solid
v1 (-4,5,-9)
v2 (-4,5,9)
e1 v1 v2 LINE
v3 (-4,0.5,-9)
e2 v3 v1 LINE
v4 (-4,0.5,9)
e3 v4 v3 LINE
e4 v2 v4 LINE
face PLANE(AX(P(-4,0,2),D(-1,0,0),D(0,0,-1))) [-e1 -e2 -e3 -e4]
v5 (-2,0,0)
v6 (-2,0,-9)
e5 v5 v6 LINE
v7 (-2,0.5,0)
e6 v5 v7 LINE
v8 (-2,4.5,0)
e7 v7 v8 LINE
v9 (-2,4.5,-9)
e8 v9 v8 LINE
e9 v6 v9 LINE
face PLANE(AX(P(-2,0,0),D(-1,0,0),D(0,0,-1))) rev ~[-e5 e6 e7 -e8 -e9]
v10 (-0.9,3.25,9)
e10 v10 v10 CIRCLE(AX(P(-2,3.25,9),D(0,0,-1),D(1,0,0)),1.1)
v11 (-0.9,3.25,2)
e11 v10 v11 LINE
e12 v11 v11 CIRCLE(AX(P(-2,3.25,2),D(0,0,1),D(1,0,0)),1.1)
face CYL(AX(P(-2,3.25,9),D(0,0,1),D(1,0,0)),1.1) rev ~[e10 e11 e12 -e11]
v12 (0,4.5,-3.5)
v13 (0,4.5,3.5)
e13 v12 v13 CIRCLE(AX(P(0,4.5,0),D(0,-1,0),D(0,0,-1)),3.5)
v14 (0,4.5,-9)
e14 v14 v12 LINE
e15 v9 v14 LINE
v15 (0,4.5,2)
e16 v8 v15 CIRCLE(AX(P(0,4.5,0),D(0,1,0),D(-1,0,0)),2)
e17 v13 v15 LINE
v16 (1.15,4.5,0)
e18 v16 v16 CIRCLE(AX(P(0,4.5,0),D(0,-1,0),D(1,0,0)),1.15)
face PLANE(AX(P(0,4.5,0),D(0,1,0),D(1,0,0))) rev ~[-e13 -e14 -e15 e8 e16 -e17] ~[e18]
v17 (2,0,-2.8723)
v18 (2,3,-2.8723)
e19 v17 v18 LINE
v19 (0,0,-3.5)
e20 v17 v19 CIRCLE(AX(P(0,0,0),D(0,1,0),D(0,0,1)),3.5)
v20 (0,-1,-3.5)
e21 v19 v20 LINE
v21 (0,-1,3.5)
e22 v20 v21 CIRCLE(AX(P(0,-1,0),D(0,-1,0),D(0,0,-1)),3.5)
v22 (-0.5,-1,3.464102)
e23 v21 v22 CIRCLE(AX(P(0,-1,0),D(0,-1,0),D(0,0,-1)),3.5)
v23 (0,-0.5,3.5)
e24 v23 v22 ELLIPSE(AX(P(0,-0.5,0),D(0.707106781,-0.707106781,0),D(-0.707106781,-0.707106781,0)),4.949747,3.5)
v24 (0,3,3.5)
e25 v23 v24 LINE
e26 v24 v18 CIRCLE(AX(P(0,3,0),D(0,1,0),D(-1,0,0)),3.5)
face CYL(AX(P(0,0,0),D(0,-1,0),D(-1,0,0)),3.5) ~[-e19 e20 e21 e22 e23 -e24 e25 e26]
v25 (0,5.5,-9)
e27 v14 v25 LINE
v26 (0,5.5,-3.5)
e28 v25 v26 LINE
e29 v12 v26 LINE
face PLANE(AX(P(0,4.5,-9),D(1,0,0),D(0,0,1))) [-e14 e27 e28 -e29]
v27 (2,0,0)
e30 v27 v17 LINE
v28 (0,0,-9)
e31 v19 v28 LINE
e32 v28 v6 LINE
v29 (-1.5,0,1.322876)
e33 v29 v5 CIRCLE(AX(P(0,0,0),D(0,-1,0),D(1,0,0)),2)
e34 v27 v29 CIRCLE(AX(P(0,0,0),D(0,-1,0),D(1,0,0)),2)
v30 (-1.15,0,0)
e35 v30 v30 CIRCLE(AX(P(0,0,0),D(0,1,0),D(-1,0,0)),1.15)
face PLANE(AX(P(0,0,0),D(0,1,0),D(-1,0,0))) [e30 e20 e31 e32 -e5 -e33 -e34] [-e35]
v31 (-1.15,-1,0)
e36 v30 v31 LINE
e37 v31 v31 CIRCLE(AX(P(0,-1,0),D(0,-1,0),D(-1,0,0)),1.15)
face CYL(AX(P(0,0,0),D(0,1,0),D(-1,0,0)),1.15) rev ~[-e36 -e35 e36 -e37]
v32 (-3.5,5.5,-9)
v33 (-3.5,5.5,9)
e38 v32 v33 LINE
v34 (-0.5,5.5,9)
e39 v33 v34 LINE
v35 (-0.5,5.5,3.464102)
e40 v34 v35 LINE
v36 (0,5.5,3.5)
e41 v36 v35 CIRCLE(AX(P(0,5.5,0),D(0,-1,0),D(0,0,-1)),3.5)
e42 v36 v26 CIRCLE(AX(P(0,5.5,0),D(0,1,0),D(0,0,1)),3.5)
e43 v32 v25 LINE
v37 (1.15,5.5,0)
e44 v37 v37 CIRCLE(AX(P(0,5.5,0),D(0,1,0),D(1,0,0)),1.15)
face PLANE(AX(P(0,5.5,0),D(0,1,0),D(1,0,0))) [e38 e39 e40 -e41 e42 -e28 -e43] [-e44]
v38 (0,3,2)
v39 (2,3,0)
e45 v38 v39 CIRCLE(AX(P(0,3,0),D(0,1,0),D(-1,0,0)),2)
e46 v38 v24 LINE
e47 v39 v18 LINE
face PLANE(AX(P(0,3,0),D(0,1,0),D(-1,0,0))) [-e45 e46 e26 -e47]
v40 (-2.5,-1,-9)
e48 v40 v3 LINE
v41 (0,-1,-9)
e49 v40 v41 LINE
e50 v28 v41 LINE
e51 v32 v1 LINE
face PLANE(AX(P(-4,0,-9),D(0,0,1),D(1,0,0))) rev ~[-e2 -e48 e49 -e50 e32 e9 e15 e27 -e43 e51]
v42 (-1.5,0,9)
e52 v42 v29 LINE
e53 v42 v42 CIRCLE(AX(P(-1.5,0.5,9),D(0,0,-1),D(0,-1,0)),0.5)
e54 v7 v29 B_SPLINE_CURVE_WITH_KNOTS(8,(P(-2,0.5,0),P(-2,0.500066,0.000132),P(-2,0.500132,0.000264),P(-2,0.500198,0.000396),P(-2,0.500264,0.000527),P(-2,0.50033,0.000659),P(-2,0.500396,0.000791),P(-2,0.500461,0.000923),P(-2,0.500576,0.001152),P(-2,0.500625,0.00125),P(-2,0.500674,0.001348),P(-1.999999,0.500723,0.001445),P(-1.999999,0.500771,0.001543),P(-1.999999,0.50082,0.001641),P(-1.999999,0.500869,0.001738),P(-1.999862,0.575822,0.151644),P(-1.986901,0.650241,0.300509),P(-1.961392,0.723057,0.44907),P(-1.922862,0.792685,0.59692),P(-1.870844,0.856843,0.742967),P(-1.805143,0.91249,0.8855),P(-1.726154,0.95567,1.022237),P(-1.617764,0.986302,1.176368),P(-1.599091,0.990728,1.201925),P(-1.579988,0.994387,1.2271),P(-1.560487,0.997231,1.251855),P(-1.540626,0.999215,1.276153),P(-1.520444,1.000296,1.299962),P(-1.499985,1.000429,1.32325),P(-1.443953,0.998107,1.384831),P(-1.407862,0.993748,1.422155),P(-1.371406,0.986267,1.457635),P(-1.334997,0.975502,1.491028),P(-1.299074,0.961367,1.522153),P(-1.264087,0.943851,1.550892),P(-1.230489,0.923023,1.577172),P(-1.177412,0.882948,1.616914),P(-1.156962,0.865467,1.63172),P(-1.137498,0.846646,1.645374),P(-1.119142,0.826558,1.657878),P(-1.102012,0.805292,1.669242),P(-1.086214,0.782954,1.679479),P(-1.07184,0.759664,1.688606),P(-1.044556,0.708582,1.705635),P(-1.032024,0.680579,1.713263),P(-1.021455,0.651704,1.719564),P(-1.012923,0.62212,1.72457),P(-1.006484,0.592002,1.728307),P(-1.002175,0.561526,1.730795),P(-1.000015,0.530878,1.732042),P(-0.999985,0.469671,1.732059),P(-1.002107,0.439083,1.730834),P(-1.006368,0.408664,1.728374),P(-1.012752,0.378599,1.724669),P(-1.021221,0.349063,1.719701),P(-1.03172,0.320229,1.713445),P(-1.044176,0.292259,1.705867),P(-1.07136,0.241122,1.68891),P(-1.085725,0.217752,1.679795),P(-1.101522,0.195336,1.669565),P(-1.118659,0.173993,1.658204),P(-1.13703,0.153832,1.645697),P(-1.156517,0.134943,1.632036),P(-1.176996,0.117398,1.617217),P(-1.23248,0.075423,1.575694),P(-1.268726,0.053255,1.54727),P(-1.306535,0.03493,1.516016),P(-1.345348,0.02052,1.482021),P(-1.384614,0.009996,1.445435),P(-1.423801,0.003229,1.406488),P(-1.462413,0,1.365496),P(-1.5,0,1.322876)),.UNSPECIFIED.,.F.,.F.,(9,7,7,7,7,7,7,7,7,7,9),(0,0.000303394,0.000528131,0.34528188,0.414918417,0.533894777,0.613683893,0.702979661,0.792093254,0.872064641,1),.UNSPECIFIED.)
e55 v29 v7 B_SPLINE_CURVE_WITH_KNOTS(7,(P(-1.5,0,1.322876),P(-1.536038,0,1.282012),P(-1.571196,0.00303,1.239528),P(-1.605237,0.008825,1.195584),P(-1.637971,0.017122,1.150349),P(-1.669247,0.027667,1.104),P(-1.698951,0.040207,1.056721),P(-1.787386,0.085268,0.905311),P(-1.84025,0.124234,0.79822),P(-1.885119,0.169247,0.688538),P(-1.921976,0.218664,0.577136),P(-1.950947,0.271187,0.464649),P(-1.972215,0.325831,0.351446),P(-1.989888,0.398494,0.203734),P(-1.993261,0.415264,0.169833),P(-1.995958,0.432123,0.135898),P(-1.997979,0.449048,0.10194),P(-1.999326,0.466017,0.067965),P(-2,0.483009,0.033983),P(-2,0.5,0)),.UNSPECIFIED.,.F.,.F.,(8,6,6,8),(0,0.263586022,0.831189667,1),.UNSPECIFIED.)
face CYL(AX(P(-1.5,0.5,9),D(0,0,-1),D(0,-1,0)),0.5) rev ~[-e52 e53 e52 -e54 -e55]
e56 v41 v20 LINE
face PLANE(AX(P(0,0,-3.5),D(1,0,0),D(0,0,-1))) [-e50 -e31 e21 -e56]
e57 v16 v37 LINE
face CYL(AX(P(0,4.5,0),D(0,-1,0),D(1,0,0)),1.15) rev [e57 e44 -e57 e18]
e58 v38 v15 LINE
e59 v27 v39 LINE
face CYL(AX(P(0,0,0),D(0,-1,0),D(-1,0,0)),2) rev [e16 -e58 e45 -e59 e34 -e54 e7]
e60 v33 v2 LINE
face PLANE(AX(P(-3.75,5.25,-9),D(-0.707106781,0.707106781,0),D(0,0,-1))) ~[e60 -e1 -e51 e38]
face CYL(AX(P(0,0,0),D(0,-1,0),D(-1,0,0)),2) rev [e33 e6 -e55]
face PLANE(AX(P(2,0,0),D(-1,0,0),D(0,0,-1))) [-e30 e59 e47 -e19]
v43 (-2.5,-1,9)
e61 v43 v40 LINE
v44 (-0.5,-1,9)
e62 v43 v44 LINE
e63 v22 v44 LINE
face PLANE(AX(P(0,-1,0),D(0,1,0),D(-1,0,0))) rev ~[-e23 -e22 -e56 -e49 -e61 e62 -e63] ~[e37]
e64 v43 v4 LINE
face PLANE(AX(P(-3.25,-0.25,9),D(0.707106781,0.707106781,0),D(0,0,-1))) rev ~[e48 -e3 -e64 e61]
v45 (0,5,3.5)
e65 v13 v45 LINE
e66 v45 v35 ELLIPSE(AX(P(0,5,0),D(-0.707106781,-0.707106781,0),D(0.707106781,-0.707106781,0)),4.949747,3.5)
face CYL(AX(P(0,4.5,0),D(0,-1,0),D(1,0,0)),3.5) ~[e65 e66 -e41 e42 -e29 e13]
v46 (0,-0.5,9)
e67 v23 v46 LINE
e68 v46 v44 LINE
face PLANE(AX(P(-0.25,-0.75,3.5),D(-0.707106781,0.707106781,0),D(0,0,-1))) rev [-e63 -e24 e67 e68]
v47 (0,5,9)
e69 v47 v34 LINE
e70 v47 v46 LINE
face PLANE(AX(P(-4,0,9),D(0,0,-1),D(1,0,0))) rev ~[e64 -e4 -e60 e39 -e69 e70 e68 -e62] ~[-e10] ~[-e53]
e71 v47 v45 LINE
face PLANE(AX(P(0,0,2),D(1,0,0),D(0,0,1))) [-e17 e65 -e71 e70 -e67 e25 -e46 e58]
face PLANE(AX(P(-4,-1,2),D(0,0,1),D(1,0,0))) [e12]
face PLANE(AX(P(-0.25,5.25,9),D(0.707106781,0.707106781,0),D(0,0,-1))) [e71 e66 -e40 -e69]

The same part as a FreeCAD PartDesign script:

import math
import FreeCAD as App
import Part
import Sketcher

V = App.Vector


def edges_at(feature, points):
    """Names of the edges that pass closest to the given points."""
    edges = feature.Shape.Edges
    near = lambda p: min(range(len(edges)), key=lambda i: edges[i].distToShape(Part.Vertex(*p))[0])
    return sorted({f"Edge{near(p) + 1}" for p in points})

doc = App.newDocument("Part")
body = doc.addObject("PartDesign::Body", "Body")

# Sketch on XZ plane
sketch1 = body.newObject("Sketcher::SketchObject", "Sketch")
sketch1.AttachmentSupport = (doc.getObject("XZ_Plane"), [""])
sketch1.MapMode = "FlatFace"
sketch1.addGeometry([
    Part.ArcOfCircle(Part.Circle(V(0, 0, 0), V(0, 0, 1), 2), math.radians(0), math.radians(90)),
    Part.LineSegment(V(0, 2, 0), V(0, 3.5, 0)),
    Part.ArcOfCircle(Part.Circle(V(0, 0, 0), V(0, 0, 1), 3.5), math.radians(-55.15027), math.radians(90)),
    Part.LineSegment(V(2, -2.8723, 0), V(2, 0, 0)),
], False)
sketch1.addConstraint([
    Sketcher.Constraint("Coincident", 0, 2, 1, 1),
    Sketcher.Constraint("Coincident", 1, 2, 2, 2),
    Sketcher.Constraint("Coincident", 2, 1, 3, 1),
    Sketcher.Constraint("Tangent", 3, 2, 0, 1),
    Sketcher.Constraint("Vertical", 1),
    Sketcher.Constraint("Vertical", 3),
    Sketcher.Constraint("Coincident", 0, 3, -1, 1),
    Sketcher.Constraint("Coincident", 2, 3, -1, 1),
    Sketcher.Constraint("PointOnObject", 0, 2, -2),
    Sketcher.Constraint("Radius", 0, 2.0),
    Sketcher.Constraint("Radius", 2, 3.5),
])
pad1 = body.newObject("PartDesign::Pad", "Pad")
pad1.Profile = sketch1
pad1.Length = 3
pad1.Reversed = True

# Sketch on XZ plane
sketch2 = body.newObject("Sketcher::SketchObject", "Sketch001")
sketch2.AttachmentSupport = (doc.getObject("XZ_Plane"), [""])
sketch2.MapMode = "FlatFace"
sketch2.addGeometry([
    Part.LineSegment(V(-2, 0, 0), V(-2, -9, 0)),  # 0
    Part.LineSegment(V(-2, -9, 0), V(-4, -9, 0)),  # 1
    Part.LineSegment(V(-4, -9, 0), V(-4, 9, 0)),  # 2
    Part.LineSegment(V(-4, 9, 0), V(0, 9, 0)),  # 3
    Part.LineSegment(V(0, 9, 0), V(0, 2, 0)),  # 4
    Part.ArcOfCircle(Part.Circle(V(0, 0, 0), V(0, 0, 1), 2), math.radians(90), math.radians(180)),  # 5
], False)
sketch2.addConstraint([
    Sketcher.Constraint("Coincident", 0, 2, 1, 1),
    Sketcher.Constraint("Coincident", 1, 2, 2, 1),
    Sketcher.Constraint("Coincident", 2, 2, 3, 1),
    Sketcher.Constraint("Coincident", 3, 2, 4, 1),
    Sketcher.Constraint("Coincident", 4, 2, 5, 1),
    Sketcher.Constraint("Tangent", 5, 2, 0, 1),
    Sketcher.Constraint("Vertical", 0),
    Sketcher.Constraint("Horizontal", 1),
    Sketcher.Constraint("Vertical", 2),
    Sketcher.Constraint("Horizontal", 3),
    Sketcher.Constraint("Vertical", 4),
    Sketcher.Constraint("Coincident", 5, 3, -1, 1),
    Sketcher.Constraint("PointOnObject", 3, 2, -2),
    Sketcher.Constraint("Radius", 5, 2.0),
    Sketcher.Constraint("DistanceX", 3, 1, 3, 2, 4.0),
    Sketcher.Constraint("DistanceY", 0, 2, 0, 1, 9.0),
    Sketcher.Constraint("DistanceY", 4, 2, 4, 1, 7.0),
])
pad2 = body.newObject("PartDesign::Pad", "Pad001")
pad2.Profile = sketch2
pad2.Length = 4.5
pad2.Reversed = True

# Sketch on XZ plane
sketch3 = body.newObject("Sketcher::SketchObject", "Sketch002")
sketch3.AttachmentSupport = (doc.getObject("XZ_Plane"), [""])
sketch3.MapMode = "FlatFace"
sketch3.addGeometry([
    Part.LineSegment(V(0, -3.5, 0), V(0, -9, 0)),  # 0
    Part.LineSegment(V(0, -9, 0), V(-4, -9, 0)),  # 1
    Part.LineSegment(V(-4, -9, 0), V(-4, 9, 0)),  # 2
    Part.LineSegment(V(-4, 9, 0), V(0, 9, 0)),  # 3
    Part.LineSegment(V(0, 9, 0), V(0, 3.5, 0)),  # 4
    Part.ArcOfCircle(Part.Circle(V(0, 0, 0), V(0, 0, 1), 3.5), math.radians(-90), math.radians(90)),  # 5
    Part.Circle(V(0, 0, 0), V(0, 0, 1), 1.15),  # 6
], False)
sketch3.addConstraint([
    Sketcher.Constraint("Coincident", 0, 2, 1, 1),
    Sketcher.Constraint("Coincident", 1, 2, 2, 1),
    Sketcher.Constraint("Coincident", 2, 2, 3, 1),
    Sketcher.Constraint("Coincident", 3, 2, 4, 1),
    Sketcher.Constraint("Coincident", 4, 2, 5, 2),
    Sketcher.Constraint("Coincident", 5, 1, 0, 1),
    Sketcher.Constraint("Vertical", 0),
    Sketcher.Constraint("Horizontal", 1),
    Sketcher.Constraint("Vertical", 2),
    Sketcher.Constraint("Horizontal", 3),
    Sketcher.Constraint("Vertical", 4),
    Sketcher.Constraint("Coincident", 5, 3, -1, 1),
    Sketcher.Constraint("Coincident", 6, 3, -1, 1),
    Sketcher.Constraint("Symmetric", 0, 2, 3, 2, -1, 1),
    Sketcher.Constraint("PointOnObject", 0, 2, -2),
    Sketcher.Constraint("Diameter", 6, 2.3),
    Sketcher.Constraint("Radius", 5, 3.5),
    Sketcher.Constraint("DistanceX", 1, 2, 1, 1, 4.0),
    Sketcher.Constraint("DistanceY", 0, 2, -1, 1, 9.0),
])
pad3 = body.newObject("PartDesign::Pad", "Pad002")
pad3.Profile = sketch3
pad3.Length = 1

# Sketch on XZ plane
sketch4 = body.newObject("Sketcher::SketchObject", "Sketch003")
sketch4.AttachmentSupport = (doc.getObject("XZ_Plane"), [""])
sketch4.MapMode = "FlatFace"
sketch4.AttachmentOffset = App.Placement(V(0, 0, -4.5), App.Rotation())
sketch4.addGeometry([
    Part.LineSegment(V(0, -3.5, 0), V(0, -9, 0)),  # 0
    Part.LineSegment(V(0, -9, 0), V(-4, -9, 0)),  # 1
    Part.LineSegment(V(-4, -9, 0), V(-4, 9, 0)),  # 2
    Part.LineSegment(V(-4, 9, 0), V(0, 9, 0)),  # 3
    Part.LineSegment(V(0, 9, 0), V(0, 3.5, 0)),  # 4
    Part.ArcOfCircle(Part.Circle(V(0, 0, 0), V(0, 0, 1), 3.5), math.radians(-90), math.radians(90)),  # 5
    Part.Circle(V(0, 0, 0), V(0, 0, 1), 1.15),  # 6
], False)
sketch4.addConstraint([
    Sketcher.Constraint("Coincident", 0, 2, 1, 1),
    Sketcher.Constraint("Coincident", 1, 2, 2, 1),
    Sketcher.Constraint("Coincident", 2, 2, 3, 1),
    Sketcher.Constraint("Coincident", 3, 2, 4, 1),
    Sketcher.Constraint("Coincident", 4, 2, 5, 2),
    Sketcher.Constraint("Coincident", 5, 1, 0, 1),
    Sketcher.Constraint("Vertical", 0),
    Sketcher.Constraint("Horizontal", 1),
    Sketcher.Constraint("Vertical", 2),
    Sketcher.Constraint("Horizontal", 3),
    Sketcher.Constraint("Vertical", 4),
    Sketcher.Constraint("Coincident", 5, 3, -1, 1),
    Sketcher.Constraint("Coincident", 6, 3, -1, 1),
    Sketcher.Constraint("Symmetric", 0, 2, 3, 2, -1, 1),
    Sketcher.Constraint("PointOnObject", 0, 2, -2),
    Sketcher.Constraint("Diameter", 6, 2.3),
    Sketcher.Constraint("Radius", 5, 3.5),
    Sketcher.Constraint("DistanceX", 1, 2, 1, 1, 4.0),
    Sketcher.Constraint("DistanceY", 0, 2, -1, 1, 9.0),
])
pad4 = body.newObject("PartDesign::Pad", "Pad003")
pad4.Profile = sketch4
pad4.Length = 1
pad4.Reversed = True

# Sketch on XY plane
sketch5 = body.newObject("Sketcher::SketchObject", "Sketch004")
sketch5.AttachmentSupport = (doc.getObject("XY_Plane"), [""])
sketch5.MapMode = "FlatFace"
sketch5.AttachmentOffset = App.Placement(V(0, 0, 9), App.Rotation())
sketch5.addGeometry(Part.Circle(V(-2, 3.25, 0), V(0, 0, 1), 1.1), False)
sketch5.addConstraint([
    Sketcher.Constraint("Diameter", 0, 2.2),
    Sketcher.Constraint("DistanceX", 0, 3, -1, 1, 2.0),
    Sketcher.Constraint("DistanceY", -1, 1, 0, 3, 3.25),
])
pocket1 = body.newObject("PartDesign::Pocket", "Pocket")
pocket1.Profile = sketch5
pocket1.Length = 7

# Sketch on XY plane
sketch6 = body.newObject("Sketcher::SketchObject", "Sketch005")
sketch6.AttachmentSupport = (doc.getObject("XY_Plane"), [""])
sketch6.MapMode = "FlatFace"
sketch6.AttachmentOffset = App.Placement(V(0, 0, 9), App.Rotation())
sketch6.addGeometry(Part.Circle(V(-1.5, 0.5, 0), V(0, 0, 1), 0.5), False)
sketch6.addConstraint([
    Sketcher.Constraint("Diameter", 0, 1.0),
    Sketcher.Constraint("DistanceX", 0, 3, -1, 1, 1.5),
    Sketcher.Constraint("DistanceY", -1, 1, 0, 3, 0.5),
])
doc.recompute()
hole = body.newObject("PartDesign::Hole", "Hole")
hole.Profile = sketch6
hole.ThreadType = "None"
hole.Diameter = 1
hole.DepthType = "ThroughAll"
doc.recompute()

chamfer = body.newObject("PartDesign::Chamfer", "Chamfer")
chamfer.Base = (hole, edges_at(hole, [(0, -1, 6.25), (0, 5.5, 6.25), (-4, 5.5, 0)]))
chamfer.Size = 0.5
doc.recompute()

chamfer2 = body.newObject("PartDesign::Chamfer", "Chamfer001")
chamfer2.Base = (chamfer, edges_at(chamfer, [(-4, -1, 0)]))
chamfer2.Size = 1.5

doc.recompute()
